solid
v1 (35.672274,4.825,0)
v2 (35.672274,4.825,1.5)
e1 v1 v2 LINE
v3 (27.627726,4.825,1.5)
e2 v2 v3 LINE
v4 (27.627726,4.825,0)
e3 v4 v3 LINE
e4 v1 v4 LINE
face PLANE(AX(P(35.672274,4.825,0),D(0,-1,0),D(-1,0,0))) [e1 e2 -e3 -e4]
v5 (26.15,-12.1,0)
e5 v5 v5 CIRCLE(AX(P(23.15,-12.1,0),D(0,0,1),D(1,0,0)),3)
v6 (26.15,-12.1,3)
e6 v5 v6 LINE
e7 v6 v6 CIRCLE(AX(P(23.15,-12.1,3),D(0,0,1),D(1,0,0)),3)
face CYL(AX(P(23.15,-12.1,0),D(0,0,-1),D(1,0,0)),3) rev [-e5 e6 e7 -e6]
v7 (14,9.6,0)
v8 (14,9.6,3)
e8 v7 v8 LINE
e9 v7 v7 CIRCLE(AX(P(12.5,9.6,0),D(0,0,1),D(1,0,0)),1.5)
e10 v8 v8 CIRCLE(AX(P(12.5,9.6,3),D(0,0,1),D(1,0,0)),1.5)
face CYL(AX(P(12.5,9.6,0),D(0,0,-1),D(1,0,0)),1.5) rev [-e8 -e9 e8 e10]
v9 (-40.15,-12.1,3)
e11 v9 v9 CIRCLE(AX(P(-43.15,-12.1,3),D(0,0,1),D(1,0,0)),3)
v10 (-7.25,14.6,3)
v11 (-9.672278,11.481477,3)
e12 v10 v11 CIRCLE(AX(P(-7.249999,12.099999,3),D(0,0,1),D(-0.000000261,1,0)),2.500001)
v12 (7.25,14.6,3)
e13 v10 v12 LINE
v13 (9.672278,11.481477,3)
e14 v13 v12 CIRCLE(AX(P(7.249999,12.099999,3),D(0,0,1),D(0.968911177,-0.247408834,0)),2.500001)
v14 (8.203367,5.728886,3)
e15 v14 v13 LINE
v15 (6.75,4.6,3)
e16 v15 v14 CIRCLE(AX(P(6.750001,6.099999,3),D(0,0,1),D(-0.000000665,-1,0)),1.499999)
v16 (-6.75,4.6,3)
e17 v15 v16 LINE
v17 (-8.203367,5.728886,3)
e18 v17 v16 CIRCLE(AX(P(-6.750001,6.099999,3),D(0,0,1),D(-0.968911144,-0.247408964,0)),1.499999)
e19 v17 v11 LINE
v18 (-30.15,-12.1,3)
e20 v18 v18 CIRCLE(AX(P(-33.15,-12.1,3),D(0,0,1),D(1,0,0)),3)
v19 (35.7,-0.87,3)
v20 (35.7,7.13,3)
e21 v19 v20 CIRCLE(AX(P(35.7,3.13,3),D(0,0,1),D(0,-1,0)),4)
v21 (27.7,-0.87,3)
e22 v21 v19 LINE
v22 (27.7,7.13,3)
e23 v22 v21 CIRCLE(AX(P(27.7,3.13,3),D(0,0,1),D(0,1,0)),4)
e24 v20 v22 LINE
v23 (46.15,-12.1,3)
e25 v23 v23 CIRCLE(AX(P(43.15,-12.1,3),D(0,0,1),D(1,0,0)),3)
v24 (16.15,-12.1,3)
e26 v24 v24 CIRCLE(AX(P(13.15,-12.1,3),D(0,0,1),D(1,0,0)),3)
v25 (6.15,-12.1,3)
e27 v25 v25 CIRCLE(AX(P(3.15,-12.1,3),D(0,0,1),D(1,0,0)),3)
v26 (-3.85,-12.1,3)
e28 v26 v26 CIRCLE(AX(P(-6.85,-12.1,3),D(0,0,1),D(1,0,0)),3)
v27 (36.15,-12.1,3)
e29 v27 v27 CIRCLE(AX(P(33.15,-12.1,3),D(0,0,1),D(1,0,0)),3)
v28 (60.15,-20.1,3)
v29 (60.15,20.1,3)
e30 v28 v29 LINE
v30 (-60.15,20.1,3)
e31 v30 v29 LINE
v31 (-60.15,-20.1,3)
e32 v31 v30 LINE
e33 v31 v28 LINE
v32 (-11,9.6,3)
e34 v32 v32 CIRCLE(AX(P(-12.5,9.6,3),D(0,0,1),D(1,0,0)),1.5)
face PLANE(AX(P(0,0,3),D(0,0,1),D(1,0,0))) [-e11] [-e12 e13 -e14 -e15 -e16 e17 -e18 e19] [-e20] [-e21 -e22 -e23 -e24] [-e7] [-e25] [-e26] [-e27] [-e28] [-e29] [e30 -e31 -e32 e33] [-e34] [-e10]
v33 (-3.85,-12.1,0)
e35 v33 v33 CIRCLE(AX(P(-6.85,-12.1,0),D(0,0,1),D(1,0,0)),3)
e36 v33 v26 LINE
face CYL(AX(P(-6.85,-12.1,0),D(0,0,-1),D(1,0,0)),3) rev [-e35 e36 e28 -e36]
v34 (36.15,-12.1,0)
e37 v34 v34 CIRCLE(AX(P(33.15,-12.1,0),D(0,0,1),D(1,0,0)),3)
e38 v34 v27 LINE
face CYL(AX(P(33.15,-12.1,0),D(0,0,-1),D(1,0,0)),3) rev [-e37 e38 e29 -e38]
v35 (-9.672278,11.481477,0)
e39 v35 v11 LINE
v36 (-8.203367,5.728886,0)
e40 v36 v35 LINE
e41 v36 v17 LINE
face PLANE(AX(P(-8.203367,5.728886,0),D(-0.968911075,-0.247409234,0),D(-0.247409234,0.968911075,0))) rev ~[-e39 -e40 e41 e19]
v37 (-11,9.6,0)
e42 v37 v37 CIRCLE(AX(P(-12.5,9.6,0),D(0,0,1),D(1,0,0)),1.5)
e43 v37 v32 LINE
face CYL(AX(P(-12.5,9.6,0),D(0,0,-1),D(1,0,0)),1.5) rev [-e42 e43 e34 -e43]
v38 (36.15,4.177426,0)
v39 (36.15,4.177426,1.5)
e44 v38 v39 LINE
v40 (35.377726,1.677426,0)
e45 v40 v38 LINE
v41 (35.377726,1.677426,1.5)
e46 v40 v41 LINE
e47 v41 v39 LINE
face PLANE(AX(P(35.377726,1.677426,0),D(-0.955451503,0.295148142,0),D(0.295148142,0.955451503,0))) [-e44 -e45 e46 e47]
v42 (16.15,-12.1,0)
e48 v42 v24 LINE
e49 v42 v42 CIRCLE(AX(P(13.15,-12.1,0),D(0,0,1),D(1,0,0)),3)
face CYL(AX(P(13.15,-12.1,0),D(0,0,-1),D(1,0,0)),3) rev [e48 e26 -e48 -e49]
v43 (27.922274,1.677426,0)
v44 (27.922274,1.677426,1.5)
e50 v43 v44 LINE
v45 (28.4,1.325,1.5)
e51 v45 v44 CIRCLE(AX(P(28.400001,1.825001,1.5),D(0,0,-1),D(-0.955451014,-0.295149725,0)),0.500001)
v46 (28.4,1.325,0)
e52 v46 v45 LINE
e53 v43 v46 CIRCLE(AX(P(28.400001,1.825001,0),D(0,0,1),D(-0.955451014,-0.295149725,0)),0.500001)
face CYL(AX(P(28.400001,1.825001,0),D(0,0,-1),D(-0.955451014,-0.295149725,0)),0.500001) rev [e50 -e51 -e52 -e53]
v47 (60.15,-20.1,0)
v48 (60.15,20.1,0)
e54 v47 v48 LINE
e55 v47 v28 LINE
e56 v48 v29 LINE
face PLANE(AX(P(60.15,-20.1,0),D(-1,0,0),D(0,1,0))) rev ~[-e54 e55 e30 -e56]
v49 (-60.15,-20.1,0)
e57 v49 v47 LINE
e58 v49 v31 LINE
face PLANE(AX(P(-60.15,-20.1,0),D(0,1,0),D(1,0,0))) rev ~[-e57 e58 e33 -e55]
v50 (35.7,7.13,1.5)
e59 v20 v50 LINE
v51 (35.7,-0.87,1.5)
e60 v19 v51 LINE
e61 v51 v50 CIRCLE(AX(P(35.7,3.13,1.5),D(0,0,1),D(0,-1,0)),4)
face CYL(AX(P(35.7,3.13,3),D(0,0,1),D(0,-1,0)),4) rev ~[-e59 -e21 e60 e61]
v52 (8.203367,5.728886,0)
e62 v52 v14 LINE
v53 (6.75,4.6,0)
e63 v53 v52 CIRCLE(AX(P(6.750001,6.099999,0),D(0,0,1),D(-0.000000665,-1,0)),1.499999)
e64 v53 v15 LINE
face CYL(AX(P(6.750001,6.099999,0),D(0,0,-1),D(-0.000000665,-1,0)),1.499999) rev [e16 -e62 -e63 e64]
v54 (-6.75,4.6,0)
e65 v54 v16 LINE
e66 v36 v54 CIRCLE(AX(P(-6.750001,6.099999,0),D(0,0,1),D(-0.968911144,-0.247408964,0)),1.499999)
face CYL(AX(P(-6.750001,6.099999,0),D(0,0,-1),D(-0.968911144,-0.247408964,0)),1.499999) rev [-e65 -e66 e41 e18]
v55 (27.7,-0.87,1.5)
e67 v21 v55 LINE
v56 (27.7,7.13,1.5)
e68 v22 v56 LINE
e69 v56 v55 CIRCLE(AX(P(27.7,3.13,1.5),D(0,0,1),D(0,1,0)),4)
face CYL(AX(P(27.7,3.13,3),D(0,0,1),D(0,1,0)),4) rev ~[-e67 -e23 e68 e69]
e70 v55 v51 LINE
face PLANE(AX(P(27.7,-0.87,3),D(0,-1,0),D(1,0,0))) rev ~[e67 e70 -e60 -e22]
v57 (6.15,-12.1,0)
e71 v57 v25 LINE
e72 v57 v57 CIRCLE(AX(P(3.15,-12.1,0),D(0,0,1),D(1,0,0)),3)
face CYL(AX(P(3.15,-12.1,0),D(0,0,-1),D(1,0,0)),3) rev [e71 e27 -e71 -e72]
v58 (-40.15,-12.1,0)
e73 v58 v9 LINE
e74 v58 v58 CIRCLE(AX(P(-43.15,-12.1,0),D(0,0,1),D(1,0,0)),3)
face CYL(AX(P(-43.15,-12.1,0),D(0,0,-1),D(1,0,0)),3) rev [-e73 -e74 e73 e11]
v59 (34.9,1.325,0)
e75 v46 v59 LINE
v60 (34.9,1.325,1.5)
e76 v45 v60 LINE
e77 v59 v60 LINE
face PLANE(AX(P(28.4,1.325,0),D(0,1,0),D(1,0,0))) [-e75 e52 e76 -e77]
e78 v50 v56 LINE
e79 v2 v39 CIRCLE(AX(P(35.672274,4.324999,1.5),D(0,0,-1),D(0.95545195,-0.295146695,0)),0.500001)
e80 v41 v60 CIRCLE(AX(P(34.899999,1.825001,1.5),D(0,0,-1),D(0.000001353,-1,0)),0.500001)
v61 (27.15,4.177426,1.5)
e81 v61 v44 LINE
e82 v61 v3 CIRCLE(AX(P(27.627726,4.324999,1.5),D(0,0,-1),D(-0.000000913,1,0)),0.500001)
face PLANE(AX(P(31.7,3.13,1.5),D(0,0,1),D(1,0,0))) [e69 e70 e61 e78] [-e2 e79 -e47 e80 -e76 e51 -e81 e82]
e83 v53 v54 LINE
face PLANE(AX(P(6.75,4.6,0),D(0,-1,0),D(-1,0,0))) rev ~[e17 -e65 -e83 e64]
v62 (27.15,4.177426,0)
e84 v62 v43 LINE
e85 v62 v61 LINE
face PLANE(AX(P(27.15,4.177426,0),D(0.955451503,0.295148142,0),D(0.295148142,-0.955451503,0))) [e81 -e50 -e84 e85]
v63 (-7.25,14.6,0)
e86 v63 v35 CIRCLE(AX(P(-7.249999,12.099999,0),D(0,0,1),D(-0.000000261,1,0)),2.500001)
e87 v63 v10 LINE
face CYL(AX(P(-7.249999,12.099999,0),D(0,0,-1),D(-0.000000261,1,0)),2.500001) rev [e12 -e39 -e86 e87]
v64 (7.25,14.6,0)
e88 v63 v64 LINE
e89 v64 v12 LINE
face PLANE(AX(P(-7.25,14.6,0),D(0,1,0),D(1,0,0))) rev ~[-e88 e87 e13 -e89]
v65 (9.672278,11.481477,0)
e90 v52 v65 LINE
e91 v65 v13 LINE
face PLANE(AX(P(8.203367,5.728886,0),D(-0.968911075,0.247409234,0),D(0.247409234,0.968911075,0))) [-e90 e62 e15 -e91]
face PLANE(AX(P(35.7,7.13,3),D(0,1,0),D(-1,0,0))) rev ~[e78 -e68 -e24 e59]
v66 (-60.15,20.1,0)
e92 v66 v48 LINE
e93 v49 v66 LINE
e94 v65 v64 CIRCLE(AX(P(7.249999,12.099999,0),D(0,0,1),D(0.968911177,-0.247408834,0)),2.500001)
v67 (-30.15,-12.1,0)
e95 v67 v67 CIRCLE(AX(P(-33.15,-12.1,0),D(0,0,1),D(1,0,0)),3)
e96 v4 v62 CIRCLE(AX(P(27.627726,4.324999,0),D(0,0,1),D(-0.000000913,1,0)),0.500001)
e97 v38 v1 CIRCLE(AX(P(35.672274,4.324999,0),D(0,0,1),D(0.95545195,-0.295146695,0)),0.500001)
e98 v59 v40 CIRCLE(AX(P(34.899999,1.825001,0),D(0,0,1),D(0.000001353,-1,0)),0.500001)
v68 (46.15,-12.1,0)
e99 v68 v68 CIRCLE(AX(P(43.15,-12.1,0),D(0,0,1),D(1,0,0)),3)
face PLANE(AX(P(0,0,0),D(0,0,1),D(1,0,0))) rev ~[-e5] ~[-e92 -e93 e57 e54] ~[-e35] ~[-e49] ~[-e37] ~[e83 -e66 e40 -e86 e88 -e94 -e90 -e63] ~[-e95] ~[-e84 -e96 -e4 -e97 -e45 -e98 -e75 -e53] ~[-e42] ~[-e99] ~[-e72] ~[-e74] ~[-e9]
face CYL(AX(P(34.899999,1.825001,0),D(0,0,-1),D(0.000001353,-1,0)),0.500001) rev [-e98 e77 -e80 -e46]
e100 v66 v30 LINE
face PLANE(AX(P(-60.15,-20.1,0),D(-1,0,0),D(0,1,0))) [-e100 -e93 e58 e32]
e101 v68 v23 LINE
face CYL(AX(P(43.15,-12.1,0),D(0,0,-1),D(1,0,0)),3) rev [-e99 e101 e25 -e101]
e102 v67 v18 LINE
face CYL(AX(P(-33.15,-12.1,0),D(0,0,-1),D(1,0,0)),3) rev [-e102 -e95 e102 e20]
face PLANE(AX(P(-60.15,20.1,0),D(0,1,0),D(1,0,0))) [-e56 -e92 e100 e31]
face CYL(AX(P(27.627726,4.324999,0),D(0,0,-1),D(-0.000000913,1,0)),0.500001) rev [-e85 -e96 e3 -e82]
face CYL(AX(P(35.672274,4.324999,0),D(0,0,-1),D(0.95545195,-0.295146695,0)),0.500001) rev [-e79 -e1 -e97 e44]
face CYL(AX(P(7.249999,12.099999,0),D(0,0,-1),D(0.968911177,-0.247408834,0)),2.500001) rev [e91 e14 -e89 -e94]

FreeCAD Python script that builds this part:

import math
import FreeCAD as App
import Part
import Sketcher

V = App.Vector

doc = App.newDocument("Part")
body = doc.addObject("PartDesign::Body", "Body")

# Sketch on XY plane
sketch1 = body.newObject("Sketcher::SketchObject", "Sketch")
sketch1.AttachmentSupport = (doc.getObject("XY_Plane"), [""])
sketch1.MapMode = "FlatFace"
sketch1.addGeometry([
    Part.LineSegment(V(-60.15, 20.1, 0), V(-60.15, -20.1, 0)),  # 0
    Part.LineSegment(V(-60.15, -20.1, 0), V(60.15, -20.1, 0)),  # 1
    Part.LineSegment(V(60.15, -20.1, 0), V(60.15, 20.1, 0)),  # 2
    Part.LineSegment(V(60.15, 20.1, 0), V(-60.15, 20.1, 0)),  # 3
    Part.Circle(V(-43.15, -12.1, 0), V(0, 0, 1), 3),  # 4
    Part.Circle(V(-33.15, -12.1, 0), V(0, 0, 1), 3),  # 5
    Part.Circle(V(-6.85, -12.1, 0), V(0, 0, 1), 3),  # 6
    Part.Circle(V(3.15, -12.1, 0), V(0, 0, 1), 3),  # 7
    Part.Circle(V(13.15, -12.1, 0), V(0, 0, 1), 3),  # 8
    Part.Circle(V(23.15, -12.1, 0), V(0, 0, 1), 3),  # 9
    Part.Circle(V(33.15, -12.1, 0), V(0, 0, 1), 3),  # 10
    Part.Circle(V(43.15, -12.1, 0), V(0, 0, 1), 3),  # 11
    Part.Circle(V(-12.5, 9.6, 0), V(0, 0, 1), 1.5),  # 12
    Part.LineSegment(V(34.9, 1.325, 0), V(28.4, 1.325, 0)),  # 13
    Part.ArcOfCircle(Part.Circle(V(28.400001, 1.825001, 0), V(0, 0, 1), 0.500001), math.radians(-162.833484), math.radians(-90.000077)),  # 14
    Part.LineSegment(V(27.922274, 1.677426, 0), V(27.15, 4.177426, 0)),  # 15
    Part.ArcOfCircle(Part.Circle(V(27.627726, 4.324999, 0), V(0, 0, 1), 0.500001), math.radians(90.000052), math.radians(197.166334)),  # 16
    Part.LineSegment(V(27.627726, 4.825, 0), V(35.672274, 4.825, 0)),  # 17
    Part.ArcOfCircle(Part.Circle(V(35.672274, 4.324999, 0), V(0, 0, 1), 0.500001), math.radians(-17.166334), math.radians(89.999948)),  # 18
    Part.LineSegment(V(36.15, 4.177426, 0), V(35.377726, 1.677426, 0)),  # 19
    Part.ArcOfCircle(Part.Circle(V(34.899999, 1.825001, 0), V(0, 0, 1), 0.500001), math.radians(-89.999923), math.radians(-17.166516)),  # 20
    Part.ArcOfCircle(Part.Circle(V(-7.249999, 12.099999, 0), V(0, 0, 1), 2.500001), math.radians(90.000015), math.radians(194.324233)),  # 21
    Part.LineSegment(V(-7.25, 14.6, 0), V(7.25, 14.6, 0)),  # 22
    Part.ArcOfCircle(Part.Circle(V(7.249999, 12.099999, 0), V(0, 0, 1), 2.500001), math.radians(-14.324233), math.radians(89.999985)),  # 23
    Part.LineSegment(V(9.672278, 11.481477, 0), V(8.203367, 5.728886, 0)),  # 24
    Part.ArcOfCircle(Part.Circle(V(6.750001, 6.099999, 0), V(0, 0, 1), 1.499999), math.radians(-90.000038), math.radians(-14.324241)),  # 25
    Part.LineSegment(V(6.75, 4.6, 0), V(-6.75, 4.6, 0)),  # 26
    Part.ArcOfCircle(Part.Circle(V(-6.750001, 6.099999, 0), V(0, 0, 1), 1.499999), math.radians(-165.675759), math.radians(-89.999962)),  # 27
    Part.LineSegment(V(-8.203367, 5.728886, 0), V(-9.672278, 11.481477, 0)),  # 28
    Part.Circle(V(12.5, 9.6, 0), V(0, 0, 1), 1.5),  # 29
], False)
sketch1.addConstraint([
    Sketcher.Constraint("Coincident", 0, 2, 1, 1),
    Sketcher.Constraint("Coincident", 1, 2, 2, 1),
    Sketcher.Constraint("Coincident", 2, 2, 3, 1),
    Sketcher.Constraint("Coincident", 3, 2, 0, 1),
    Sketcher.Constraint("Tangent", 13, 2, 14, 2),
    Sketcher.Constraint("Tangent", 14, 1, 15, 1),
    Sketcher.Constraint("Tangent", 15, 2, 16, 2),
    Sketcher.Constraint("Tangent", 16, 1, 17, 1),
    Sketcher.Constraint("Tangent", 17, 2, 18, 2),
    Sketcher.Constraint("Tangent", 18, 1, 19, 1),
    Sketcher.Constraint("Tangent", 19, 2, 20, 2),
    Sketcher.Constraint("Tangent", 20, 1, 13, 1),
    Sketcher.Constraint("Tangent", 21, 1, 22, 1),
    Sketcher.Constraint("Tangent", 22, 2, 23, 2),
    Sketcher.Constraint("Tangent", 23, 1, 24, 1),
    Sketcher.Constraint("Tangent", 24, 2, 25, 2),
    Sketcher.Constraint("Tangent", 25, 1, 26, 1),
    Sketcher.Constraint("Tangent", 26, 2, 27, 2),
    Sketcher.Constraint("Tangent", 27, 1, 28, 1),
    Sketcher.Constraint("Tangent", 28, 2, 21, 2),
    Sketcher.Constraint("Vertical", 0),
    Sketcher.Constraint("Horizontal", 1),
    Sketcher.Constraint("Vertical", 2),
    Sketcher.Constraint("Horizontal", 3),
    Sketcher.Constraint("Horizontal", 13),
    Sketcher.Constraint("Horizontal", 17),
    Sketcher.Constraint("Horizontal", 22),
    Sketcher.Constraint("Horizontal", 26),
    Sketcher.Constraint("Equal", 4, 5),
    Sketcher.Constraint("Equal", 5, 6),
    Sketcher.Constraint("Equal", 6, 7),
    Sketcher.Constraint("Equal", 7, 8),
    Sketcher.Constraint("Equal", 8, 9),
    Sketcher.Constraint("Equal", 9, 10),
    Sketcher.Constraint("Equal", 10, 11),
    Sketcher.Constraint("Equal", 14, 16),
    Sketcher.Constraint("Equal", 16, 18),
    Sketcher.Constraint("Equal", 18, 20),
    Sketcher.Constraint("Equal", 21, 23),
    Sketcher.Constraint("Equal", 12, 25),
    Sketcher.Constraint("Equal", 25, 27),
    Sketcher.Constraint("Equal", 27, 29),
    Sketcher.Constraint("Symmetric", 0, 2, 2, 2, -1, 1),
    Sketcher.Constraint("Symmetric", 5, 3, 10, 3, -2),
    Sketcher.Constraint("Symmetric", 4, 3, 11, 3, -2),
    Sketcher.Constraint("Symmetric", 12, 3, 29, 3, -2),
    Sketcher.Constraint("Symmetric", 24, 2, 27, 1, -2),
    Sketcher.Constraint("Horizontal", 4, 3, 5, 3),
    Sketcher.Constraint("Horizontal", 5, 3, 6, 3),
    Sketcher.Constraint("Horizontal", 6, 3, 7, 3),
    Sketcher.Constraint("Horizontal", 7, 3, 8, 3),
    Sketcher.Constraint("Horizontal", 8, 3, 9, 3),
    Sketcher.Constraint("Horizontal", 15, 2, 18, 1),
    Sketcher.Constraint("Diameter", 4, 6.0),
    Sketcher.Constraint("Diameter", 12, 3.0),
    Sketcher.Constraint("Radius", 14, 0.500001),
    Sketcher.Constraint("Radius", 21, 2.500001),
    Sketcher.Constraint("DistanceX", 1, 1, 1, 2, 120.3),
    Sketcher.Constraint("DistanceX", 13, 2, 13, 1, 6.5),
    Sketcher.Constraint("DistanceX", 22, 1, 22, 2, 14.5),
    Sketcher.Constraint("DistanceX", 26, 2, 26, 1, 13.5),
    Sketcher.Constraint("DistanceY", 0, 2, 0, 1, 40.2),
    Sketcher.Constraint("DistanceX", 4, 3, 5, 3, 10.0),
    Sketcher.Constraint("DistanceX", 6, 3, 7, 3, 10.0),
    Sketcher.Constraint("DistanceX", 7, 3, 8, 3, 10.0),
    Sketcher.Constraint("DistanceX", 8, 3, 9, 3, 10.0),
    Sketcher.Constraint("DistanceX", 9, 3, 10, 3, 10.0),
    Sketcher.Constraint("DistanceY", 25, 3, 23, 3, 6.0),
    Sketcher.Constraint("DistanceX", 0, 2, 4, 3, 17.0),
    Sketcher.Constraint("DistanceY", 0, 2, 4, 3, 8.0),
    Sketcher.Constraint("DistanceY", 21, 3, 3, 2, 8.000001),
    Sketcher.Constraint("DistanceY", 13, 2, 16, 3, 2.999999),
    Sketcher.Constraint("DistanceY", 12, 3, 21, 1, 5.0),
    Sketcher.Constraint("DistanceX", 12, 3, -1, 1, 12.5),
    Sketcher.Constraint("DistanceX", -1, 1, 14, 3, 28.400001),
    Sketcher.Constraint("DistanceX", -1, 1, 15, 2, 27.15),
    Sketcher.Constraint("DistanceY", -1, 1, 14, 3, 1.825001),
])
pad1 = body.newObject("PartDesign::Pad", "Pad")
pad1.Profile = sketch1
pad1.Length = 3

# Sketch on XY plane
sketch2 = body.newObject("Sketcher::SketchObject", "Sketch001")
sketch2.AttachmentSupport = (doc.getObject("XY_Plane"), [""])
sketch2.MapMode = "FlatFace"
sketch2.AttachmentOffset = App.Placement(V(0, 0, 3), App.Rotation())
sketch2.addGeometry([
    Part.ArcOfCircle(Part.Circle(V(27.7, 3.13, 0), V(0, 0, 1), 4), math.radians(90), math.radians(270)),
    Part.LineSegment(V(27.7, -0.87, 0), V(35.7, -0.87, 0)),
    Part.ArcOfCircle(Part.Circle(V(35.7, 3.13, 0), V(0, 0, 1), 4), math.radians(-90), math.radians(90)),
    Part.LineSegment(V(35.7, 7.13, 0), V(27.7, 7.13, 0)),
], False)
sketch2.addConstraint([
    Sketcher.Constraint("Tangent", 0, 2, 1, 1),
    Sketcher.Constraint("Tangent", 1, 2, 2, 1),
    Sketcher.Constraint("Tangent", 2, 2, 3, 1),
    Sketcher.Constraint("Tangent", 3, 2, 0, 1),
    Sketcher.Constraint("Horizontal", 1),
    Sketcher.Constraint("Horizontal", 3),
    Sketcher.Constraint("Radius", 0, 4.0),
    Sketcher.Constraint("DistanceX", 1, 1, 1, 2, 8.0),
    Sketcher.Constraint("DistanceX", -1, 1, 0, 3, 27.7),
    Sketcher.Constraint("DistanceY", -1, 1, 0, 3, 3.13),
])
pocket1 = body.newObject("PartDesign::Pocket", "Pocket")
pocket1.Profile = sketch2
pocket1.Length = 1.5

doc.recompute()
